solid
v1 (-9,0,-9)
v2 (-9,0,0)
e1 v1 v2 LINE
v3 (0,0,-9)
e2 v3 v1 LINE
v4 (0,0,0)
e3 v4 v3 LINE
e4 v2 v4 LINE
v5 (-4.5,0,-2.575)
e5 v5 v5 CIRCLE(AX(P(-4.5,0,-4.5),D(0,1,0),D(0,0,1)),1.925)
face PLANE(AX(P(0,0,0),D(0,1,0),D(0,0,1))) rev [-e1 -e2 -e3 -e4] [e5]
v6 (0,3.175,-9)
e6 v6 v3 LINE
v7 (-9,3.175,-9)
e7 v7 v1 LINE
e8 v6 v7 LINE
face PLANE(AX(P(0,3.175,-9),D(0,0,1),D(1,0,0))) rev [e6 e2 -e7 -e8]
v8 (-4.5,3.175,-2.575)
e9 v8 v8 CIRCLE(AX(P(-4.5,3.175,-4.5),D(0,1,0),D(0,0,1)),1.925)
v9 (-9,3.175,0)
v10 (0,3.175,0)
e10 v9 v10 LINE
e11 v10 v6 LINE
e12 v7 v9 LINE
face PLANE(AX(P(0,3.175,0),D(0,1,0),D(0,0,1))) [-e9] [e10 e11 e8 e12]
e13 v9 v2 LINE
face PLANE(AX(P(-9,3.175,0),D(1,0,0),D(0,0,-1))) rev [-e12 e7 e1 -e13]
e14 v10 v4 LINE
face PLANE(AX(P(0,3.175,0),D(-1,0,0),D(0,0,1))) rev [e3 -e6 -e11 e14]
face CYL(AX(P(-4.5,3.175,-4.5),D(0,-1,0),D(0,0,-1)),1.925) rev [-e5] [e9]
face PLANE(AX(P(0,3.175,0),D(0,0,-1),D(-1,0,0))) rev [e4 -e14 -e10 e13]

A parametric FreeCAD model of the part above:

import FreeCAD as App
import Part
import Sketcher
from FreeCAD import Vector


def add_polygon(sketch, points):
    """Adds a closed chain of lines whose ends are joined by coincident constraints."""
    first, n = sketch.GeometryCount, len(points)
    for a, b in zip(points, points[1:] + points[:1]):
        sketch.addGeometry(Part.LineSegment(App.Vector(*a, 0), App.Vector(*b, 0)), False)
    for i in range(n):
        sketch.addConstraint(Sketcher.Constraint("Coincident", first + i, 2, first + (i + 1) % n, 1))

doc = App.newDocument("Part")
params = doc.addObject("Spreadsheet::Sheet", "Params")
for row, (alias, value) in enumerate([
    ("sketch1_diameter", "3.85 mm"),
    ("sketch1_width", "9 mm"),
    ("pad1_length", "3.175 mm"),
], start=1):
    params.set(f"A{row}", alias)
    params.set(f"B{row}", "=" + value)
    params.setAlias(f"B{row}", alias)

body = doc.addObject("PartDesign::Body", "Body")

# Sketch on XZ plane
sketch1 = body.newObject("Sketcher::SketchObject", "Sketch")
sketch1.AttachmentSupport = (doc.getObject("XZ_Plane"), [""])
sketch1.MapMode = "FlatFace"
add_polygon(sketch1, [(-9, -9), (-9, 0), (0, 0), (0, -9)])  # lines 0-3
sketch1.addGeometry(Part.Circle(Vector(-4.5, -4.5, 0), Vector(0, 0, 1), 1.925), False)  # 4
sketch1.addConstraint([
    Sketcher.Constraint("Vertical", 0),
    Sketcher.Constraint("Horizontal", 1),
    Sketcher.Constraint("Vertical", 2),
    Sketcher.Constraint("Horizontal", 3),
    Sketcher.Constraint("Coincident", 1, 2, -1, 1),
    Sketcher.Constraint("Equal", 3, 0),
    Sketcher.Constraint("Diameter", 4, 3.85),
    Sketcher.Constraint("DistanceX", 1, 1, 1, 2, 9.0),
    Sketcher.Constraint("DistanceX", 4, 3, -1, 1, 4.5),
    Sketcher.Constraint("DistanceY", 4, 3, -1, 1, 4.5),
])
sketch1.setExpression("Constraints[10]", "Params.sketch1_diameter")
sketch1.setExpression("Constraints[11]", "Params.sketch1_width")
pad1 = body.newObject("PartDesign::Pad", "Pad")
pad1.Profile = sketch1
pad1.setExpression("Length", "Params.pad1_length")
pad1.Reversed = True

doc.recompute()
